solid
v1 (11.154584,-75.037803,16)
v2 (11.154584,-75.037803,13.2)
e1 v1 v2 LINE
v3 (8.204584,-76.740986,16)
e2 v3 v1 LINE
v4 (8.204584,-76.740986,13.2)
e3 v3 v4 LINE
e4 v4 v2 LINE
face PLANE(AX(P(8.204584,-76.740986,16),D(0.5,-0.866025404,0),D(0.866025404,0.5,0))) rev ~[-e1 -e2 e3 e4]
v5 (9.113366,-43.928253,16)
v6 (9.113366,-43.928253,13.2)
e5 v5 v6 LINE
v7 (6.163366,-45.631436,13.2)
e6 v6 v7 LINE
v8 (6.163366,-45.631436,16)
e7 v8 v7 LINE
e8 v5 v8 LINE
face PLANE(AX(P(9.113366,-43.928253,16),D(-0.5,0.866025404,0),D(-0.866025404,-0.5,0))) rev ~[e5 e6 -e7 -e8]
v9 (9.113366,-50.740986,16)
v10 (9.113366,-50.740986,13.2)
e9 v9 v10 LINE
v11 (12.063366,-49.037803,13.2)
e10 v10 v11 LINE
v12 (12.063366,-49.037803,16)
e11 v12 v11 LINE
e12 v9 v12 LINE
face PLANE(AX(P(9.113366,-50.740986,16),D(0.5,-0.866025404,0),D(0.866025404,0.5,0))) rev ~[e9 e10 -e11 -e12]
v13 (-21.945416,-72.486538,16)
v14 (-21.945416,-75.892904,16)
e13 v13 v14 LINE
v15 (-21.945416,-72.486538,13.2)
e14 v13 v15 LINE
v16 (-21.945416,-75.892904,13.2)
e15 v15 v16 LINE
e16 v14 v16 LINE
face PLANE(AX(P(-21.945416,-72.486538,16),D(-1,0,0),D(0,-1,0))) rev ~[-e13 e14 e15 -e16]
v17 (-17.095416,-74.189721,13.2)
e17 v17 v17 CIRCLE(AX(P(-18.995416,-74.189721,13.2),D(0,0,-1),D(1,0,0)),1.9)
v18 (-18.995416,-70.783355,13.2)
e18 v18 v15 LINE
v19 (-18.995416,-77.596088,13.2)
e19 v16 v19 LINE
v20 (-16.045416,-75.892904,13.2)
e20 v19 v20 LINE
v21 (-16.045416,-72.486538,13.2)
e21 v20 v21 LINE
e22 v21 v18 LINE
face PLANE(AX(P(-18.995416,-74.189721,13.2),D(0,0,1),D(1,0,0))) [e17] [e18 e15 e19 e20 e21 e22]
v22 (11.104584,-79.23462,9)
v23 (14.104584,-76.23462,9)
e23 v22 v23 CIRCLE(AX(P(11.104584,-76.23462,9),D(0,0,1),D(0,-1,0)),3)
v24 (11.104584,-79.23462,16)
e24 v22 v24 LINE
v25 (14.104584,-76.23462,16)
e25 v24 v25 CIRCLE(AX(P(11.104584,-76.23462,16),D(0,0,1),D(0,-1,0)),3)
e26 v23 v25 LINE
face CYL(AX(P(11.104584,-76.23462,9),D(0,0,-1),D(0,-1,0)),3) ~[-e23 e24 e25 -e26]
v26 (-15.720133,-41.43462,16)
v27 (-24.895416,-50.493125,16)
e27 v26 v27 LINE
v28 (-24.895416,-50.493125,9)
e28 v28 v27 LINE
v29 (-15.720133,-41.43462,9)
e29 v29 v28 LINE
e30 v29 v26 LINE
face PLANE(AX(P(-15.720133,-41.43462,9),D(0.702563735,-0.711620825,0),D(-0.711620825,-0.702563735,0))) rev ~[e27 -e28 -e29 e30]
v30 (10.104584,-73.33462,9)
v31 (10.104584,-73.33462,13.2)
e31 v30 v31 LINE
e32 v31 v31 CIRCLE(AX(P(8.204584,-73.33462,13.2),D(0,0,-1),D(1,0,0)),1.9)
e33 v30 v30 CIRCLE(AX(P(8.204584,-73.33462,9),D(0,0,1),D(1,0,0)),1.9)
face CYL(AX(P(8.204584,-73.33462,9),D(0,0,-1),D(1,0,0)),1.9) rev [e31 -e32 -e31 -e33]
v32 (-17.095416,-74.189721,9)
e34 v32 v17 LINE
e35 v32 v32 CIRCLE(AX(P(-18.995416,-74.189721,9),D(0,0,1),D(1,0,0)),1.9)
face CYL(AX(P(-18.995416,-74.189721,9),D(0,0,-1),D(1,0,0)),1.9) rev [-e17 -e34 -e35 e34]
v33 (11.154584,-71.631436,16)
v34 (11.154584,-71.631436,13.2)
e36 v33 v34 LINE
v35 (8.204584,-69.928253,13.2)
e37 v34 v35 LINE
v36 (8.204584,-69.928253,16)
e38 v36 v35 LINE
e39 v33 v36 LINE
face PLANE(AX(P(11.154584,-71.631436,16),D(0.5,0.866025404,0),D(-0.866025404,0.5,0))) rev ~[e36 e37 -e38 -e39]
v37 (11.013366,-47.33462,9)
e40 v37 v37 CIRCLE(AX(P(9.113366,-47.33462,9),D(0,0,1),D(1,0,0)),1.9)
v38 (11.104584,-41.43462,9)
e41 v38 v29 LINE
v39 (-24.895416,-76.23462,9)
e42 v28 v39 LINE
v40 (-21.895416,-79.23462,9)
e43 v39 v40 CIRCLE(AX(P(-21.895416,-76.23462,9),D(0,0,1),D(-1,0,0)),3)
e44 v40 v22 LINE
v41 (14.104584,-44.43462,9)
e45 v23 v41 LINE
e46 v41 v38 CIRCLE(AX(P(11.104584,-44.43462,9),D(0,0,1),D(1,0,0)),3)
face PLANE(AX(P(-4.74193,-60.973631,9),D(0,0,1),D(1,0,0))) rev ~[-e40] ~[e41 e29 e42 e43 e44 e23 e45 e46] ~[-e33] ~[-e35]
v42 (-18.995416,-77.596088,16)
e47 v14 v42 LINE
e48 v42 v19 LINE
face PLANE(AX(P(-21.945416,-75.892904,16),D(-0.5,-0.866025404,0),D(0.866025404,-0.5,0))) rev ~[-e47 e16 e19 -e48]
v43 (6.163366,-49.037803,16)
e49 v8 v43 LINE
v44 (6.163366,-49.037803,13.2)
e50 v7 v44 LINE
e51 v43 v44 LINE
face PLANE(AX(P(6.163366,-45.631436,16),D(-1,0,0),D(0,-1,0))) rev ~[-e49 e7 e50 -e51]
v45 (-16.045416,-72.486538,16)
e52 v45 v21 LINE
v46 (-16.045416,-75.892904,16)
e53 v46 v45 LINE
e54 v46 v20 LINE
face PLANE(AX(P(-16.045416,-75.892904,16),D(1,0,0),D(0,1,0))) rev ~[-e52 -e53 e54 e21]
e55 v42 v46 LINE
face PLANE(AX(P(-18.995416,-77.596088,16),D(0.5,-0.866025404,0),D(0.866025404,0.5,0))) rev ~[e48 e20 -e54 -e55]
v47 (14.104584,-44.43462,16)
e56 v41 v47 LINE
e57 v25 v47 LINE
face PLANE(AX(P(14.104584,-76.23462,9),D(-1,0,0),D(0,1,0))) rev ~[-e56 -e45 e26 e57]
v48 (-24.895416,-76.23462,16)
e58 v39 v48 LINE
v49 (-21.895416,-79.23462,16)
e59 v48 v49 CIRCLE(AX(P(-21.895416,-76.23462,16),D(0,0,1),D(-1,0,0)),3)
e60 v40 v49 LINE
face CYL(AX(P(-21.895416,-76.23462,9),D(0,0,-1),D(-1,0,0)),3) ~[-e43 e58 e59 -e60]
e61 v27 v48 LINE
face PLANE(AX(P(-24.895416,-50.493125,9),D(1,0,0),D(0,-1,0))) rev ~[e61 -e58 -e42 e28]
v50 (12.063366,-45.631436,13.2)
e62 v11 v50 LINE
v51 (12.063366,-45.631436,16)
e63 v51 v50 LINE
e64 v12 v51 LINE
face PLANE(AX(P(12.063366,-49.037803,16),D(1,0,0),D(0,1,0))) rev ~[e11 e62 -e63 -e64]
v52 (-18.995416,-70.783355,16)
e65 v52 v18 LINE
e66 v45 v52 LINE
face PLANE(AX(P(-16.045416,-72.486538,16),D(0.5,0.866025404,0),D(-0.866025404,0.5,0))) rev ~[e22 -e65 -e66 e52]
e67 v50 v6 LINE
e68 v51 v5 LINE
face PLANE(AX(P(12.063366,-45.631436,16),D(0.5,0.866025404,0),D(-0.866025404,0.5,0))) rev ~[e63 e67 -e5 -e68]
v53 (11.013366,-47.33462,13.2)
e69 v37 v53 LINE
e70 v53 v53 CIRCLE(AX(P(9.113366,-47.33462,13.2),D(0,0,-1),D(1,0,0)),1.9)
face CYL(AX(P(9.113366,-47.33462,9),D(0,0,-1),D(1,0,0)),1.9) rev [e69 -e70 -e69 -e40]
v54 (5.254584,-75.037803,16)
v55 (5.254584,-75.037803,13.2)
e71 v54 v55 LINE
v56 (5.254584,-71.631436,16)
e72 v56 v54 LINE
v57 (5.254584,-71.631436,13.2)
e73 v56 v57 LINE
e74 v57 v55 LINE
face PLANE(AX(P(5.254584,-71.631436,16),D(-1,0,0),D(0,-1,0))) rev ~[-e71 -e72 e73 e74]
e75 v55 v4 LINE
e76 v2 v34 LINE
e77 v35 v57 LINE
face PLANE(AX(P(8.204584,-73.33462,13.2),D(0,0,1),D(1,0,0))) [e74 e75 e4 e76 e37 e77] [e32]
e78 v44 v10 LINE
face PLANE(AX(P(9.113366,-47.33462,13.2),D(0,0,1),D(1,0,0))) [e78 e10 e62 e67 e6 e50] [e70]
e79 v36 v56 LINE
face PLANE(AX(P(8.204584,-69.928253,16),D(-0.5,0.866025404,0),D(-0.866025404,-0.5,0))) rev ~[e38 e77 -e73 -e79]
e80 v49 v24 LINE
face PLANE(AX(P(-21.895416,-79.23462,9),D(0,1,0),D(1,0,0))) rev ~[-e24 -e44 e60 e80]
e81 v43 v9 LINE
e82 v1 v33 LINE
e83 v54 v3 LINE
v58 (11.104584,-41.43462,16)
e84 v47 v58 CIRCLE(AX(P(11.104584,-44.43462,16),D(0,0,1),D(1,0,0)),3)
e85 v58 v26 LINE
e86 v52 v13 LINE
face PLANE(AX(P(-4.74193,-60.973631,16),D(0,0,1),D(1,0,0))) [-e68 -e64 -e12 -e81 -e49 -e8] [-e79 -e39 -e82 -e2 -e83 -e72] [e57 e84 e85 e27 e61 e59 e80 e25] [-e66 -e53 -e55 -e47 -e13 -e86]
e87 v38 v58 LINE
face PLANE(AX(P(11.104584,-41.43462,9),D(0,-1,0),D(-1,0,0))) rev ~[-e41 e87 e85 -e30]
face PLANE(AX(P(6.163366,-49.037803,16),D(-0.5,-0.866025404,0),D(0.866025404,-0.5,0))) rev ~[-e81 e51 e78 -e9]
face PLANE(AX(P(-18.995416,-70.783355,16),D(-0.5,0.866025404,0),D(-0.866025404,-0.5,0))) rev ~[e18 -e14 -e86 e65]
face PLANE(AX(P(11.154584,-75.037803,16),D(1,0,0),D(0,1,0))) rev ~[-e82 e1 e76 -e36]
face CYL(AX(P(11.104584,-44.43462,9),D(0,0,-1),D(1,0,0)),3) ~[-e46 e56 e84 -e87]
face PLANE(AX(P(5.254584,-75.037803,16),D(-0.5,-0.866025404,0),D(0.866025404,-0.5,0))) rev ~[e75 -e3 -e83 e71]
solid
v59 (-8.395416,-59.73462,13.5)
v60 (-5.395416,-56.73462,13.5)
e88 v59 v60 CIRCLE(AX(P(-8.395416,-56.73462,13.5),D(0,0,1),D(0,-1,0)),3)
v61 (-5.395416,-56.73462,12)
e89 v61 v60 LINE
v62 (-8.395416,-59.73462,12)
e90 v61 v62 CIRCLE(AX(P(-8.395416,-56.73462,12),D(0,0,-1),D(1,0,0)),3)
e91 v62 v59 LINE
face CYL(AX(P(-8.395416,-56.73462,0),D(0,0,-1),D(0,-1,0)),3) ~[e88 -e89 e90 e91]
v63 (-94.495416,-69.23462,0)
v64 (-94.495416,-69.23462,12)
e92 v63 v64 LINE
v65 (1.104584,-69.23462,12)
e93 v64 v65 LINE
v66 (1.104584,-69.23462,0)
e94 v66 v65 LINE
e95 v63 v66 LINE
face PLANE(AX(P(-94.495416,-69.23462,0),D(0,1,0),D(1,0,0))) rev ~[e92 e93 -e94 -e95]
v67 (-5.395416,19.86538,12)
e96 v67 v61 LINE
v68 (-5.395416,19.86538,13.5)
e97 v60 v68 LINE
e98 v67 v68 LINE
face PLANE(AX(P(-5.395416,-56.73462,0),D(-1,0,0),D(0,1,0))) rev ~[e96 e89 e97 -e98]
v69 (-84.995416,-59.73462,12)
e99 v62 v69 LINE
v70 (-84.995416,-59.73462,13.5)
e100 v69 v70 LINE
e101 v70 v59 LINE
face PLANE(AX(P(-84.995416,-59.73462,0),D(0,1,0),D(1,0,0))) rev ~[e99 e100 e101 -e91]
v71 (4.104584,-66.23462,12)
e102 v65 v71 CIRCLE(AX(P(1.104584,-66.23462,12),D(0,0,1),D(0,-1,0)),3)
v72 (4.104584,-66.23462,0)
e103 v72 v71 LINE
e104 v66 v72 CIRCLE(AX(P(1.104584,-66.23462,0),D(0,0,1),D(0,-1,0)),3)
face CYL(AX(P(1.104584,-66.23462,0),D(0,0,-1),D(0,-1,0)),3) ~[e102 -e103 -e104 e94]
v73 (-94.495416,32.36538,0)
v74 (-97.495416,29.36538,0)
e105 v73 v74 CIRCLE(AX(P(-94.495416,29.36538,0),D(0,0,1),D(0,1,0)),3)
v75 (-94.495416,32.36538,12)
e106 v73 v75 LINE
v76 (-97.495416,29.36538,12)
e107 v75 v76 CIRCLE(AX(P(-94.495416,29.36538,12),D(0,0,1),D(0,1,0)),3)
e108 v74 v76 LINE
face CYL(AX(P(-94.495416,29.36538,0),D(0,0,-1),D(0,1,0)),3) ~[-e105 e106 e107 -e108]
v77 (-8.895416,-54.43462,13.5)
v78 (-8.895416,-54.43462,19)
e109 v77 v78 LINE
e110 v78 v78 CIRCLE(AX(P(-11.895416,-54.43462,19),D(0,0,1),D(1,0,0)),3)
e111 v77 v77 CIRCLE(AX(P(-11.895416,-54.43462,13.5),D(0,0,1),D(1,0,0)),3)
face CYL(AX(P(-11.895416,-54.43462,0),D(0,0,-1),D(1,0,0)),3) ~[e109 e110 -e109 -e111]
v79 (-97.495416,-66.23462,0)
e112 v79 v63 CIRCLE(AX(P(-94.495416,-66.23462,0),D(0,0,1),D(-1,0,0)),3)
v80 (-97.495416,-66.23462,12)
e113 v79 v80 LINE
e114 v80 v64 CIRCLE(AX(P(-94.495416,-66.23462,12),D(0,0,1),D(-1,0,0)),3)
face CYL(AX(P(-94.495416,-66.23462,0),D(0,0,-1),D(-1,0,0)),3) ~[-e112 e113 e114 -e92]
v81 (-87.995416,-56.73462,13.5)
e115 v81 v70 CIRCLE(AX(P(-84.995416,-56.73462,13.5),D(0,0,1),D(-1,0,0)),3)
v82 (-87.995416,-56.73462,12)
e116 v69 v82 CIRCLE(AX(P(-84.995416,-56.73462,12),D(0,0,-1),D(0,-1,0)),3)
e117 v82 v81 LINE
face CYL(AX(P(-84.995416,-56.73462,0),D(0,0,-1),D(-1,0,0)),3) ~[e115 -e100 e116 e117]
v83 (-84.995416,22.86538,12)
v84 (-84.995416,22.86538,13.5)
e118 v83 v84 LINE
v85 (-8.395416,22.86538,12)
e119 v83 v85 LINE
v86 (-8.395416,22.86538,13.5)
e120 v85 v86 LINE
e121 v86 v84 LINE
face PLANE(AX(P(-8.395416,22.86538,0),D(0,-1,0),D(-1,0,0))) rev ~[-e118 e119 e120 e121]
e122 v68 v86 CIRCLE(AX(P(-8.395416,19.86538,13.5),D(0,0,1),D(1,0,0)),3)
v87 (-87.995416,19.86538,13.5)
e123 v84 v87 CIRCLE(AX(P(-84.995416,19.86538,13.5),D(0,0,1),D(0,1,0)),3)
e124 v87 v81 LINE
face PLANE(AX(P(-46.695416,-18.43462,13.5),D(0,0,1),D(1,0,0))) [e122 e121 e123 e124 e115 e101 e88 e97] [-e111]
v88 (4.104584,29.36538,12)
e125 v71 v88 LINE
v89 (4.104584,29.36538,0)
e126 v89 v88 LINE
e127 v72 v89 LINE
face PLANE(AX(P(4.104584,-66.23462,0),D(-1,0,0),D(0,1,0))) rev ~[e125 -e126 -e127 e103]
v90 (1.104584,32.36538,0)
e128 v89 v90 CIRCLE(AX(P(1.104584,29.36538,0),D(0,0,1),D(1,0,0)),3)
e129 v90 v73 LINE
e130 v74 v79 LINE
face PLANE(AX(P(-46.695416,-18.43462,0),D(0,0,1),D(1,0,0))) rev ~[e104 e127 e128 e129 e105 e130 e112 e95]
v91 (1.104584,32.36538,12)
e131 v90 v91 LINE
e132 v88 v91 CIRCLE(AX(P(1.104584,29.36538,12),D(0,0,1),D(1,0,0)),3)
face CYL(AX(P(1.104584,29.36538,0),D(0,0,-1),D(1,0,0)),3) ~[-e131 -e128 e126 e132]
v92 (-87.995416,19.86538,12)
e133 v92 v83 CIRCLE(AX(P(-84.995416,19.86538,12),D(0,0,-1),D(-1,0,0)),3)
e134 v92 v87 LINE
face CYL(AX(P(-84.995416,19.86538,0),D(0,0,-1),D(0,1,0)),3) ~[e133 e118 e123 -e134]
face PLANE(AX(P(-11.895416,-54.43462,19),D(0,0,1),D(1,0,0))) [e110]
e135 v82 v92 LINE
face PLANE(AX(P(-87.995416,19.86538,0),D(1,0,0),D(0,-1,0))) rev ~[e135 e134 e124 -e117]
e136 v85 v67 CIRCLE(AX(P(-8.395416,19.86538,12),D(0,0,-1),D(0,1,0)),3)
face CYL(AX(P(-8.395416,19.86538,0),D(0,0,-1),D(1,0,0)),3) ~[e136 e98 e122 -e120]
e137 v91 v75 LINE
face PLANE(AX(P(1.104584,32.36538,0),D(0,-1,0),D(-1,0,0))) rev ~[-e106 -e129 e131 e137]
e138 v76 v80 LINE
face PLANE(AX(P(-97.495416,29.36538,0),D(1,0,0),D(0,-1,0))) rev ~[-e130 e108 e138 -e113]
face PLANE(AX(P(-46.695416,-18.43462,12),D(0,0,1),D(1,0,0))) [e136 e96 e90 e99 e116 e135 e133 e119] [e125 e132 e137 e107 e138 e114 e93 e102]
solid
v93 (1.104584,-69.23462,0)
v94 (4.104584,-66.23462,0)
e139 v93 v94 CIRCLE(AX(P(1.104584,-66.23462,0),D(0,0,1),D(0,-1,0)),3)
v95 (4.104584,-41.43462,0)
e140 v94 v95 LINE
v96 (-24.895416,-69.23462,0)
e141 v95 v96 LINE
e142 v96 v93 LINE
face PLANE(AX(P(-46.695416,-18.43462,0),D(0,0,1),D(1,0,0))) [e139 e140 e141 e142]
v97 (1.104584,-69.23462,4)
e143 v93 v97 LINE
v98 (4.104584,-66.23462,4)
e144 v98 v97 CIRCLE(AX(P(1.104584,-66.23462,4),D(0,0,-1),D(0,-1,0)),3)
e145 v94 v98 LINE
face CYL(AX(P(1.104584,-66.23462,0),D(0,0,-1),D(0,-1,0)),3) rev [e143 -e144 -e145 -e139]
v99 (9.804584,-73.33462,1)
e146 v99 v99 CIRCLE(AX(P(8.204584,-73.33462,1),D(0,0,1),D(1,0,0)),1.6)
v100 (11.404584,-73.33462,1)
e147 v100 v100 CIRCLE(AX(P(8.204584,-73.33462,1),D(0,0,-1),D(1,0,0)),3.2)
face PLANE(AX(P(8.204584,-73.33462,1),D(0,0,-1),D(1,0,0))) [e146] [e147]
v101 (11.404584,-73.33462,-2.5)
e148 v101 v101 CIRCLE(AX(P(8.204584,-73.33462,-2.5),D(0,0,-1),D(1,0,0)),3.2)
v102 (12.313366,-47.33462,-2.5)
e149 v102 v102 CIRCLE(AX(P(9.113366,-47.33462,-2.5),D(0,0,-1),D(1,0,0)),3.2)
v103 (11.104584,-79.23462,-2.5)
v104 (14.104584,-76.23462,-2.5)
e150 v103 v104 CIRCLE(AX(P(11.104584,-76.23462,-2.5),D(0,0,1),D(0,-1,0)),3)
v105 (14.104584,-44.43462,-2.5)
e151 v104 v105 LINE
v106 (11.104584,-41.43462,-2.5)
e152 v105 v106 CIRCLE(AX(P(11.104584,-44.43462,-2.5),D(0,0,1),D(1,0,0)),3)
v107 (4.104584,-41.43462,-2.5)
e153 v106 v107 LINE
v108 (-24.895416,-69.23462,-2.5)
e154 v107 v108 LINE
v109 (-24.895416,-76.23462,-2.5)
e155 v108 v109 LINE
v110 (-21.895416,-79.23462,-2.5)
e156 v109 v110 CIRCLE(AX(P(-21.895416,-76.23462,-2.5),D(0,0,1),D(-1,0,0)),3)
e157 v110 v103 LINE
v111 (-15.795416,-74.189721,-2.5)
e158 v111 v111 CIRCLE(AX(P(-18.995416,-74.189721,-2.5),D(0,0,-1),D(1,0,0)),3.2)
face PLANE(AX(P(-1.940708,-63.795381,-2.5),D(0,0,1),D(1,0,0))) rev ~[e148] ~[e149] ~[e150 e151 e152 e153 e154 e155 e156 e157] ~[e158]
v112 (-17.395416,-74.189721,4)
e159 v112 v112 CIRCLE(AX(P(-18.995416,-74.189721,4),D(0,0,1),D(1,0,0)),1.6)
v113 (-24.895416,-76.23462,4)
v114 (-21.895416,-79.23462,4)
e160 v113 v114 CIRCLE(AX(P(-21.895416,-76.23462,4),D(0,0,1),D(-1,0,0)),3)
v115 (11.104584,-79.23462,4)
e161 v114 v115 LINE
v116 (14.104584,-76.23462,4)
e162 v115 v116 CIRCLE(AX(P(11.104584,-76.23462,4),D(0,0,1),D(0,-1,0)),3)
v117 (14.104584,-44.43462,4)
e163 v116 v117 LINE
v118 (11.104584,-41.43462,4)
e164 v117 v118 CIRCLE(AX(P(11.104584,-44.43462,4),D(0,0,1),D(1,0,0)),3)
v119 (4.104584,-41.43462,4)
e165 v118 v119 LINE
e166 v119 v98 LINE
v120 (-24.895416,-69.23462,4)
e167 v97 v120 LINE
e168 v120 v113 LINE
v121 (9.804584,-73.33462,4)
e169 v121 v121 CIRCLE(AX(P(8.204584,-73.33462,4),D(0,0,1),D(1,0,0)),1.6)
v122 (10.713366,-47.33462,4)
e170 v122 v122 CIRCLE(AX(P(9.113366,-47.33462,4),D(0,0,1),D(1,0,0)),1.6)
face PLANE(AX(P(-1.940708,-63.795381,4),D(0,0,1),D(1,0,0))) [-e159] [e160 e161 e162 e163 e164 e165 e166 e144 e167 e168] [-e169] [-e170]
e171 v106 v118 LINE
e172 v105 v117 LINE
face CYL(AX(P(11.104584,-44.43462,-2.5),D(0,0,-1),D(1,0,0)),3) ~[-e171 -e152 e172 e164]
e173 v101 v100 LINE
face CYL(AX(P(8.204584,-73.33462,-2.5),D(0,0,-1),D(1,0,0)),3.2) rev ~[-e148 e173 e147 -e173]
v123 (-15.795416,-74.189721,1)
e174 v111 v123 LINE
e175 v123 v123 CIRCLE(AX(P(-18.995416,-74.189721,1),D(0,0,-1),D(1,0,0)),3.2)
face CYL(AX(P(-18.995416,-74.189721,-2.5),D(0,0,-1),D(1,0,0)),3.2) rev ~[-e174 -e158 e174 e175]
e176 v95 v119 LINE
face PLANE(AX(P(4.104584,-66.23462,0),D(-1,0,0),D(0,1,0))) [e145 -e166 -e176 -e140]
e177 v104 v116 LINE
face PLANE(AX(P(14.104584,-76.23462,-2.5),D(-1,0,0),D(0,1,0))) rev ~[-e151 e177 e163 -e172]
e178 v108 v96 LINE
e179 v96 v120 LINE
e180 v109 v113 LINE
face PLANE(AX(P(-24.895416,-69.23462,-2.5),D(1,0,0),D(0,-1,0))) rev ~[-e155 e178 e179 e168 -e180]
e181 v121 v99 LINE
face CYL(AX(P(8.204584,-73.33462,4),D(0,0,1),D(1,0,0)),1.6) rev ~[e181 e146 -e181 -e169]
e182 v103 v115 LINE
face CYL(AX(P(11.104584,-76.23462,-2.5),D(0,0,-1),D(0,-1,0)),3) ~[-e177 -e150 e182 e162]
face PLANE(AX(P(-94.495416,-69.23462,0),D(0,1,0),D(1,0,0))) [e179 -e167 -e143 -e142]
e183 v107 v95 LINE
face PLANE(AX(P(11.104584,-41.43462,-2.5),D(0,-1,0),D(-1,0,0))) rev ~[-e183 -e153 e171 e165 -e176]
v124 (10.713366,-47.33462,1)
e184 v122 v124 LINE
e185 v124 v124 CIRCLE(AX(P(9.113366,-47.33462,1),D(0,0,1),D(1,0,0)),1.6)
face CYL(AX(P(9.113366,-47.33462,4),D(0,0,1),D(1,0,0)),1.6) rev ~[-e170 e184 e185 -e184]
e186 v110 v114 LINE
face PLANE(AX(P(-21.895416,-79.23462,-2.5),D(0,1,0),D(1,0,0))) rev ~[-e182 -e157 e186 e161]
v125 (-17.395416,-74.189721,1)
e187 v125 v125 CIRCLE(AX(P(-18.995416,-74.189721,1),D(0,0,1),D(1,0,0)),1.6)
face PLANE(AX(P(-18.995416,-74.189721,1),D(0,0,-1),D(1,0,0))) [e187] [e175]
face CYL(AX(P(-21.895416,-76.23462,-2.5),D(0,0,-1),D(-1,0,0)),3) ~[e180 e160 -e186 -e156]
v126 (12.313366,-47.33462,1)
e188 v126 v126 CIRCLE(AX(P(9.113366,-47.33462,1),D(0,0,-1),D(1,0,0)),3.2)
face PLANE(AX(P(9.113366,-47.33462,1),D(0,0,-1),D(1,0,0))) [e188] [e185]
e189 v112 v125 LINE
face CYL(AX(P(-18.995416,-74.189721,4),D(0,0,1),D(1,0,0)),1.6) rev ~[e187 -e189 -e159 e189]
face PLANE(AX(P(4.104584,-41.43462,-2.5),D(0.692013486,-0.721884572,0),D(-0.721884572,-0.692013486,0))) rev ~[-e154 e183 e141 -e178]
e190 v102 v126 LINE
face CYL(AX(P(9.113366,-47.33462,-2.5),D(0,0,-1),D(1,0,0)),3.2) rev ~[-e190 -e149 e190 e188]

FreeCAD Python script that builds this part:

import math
import FreeCAD as App
import Part
import Sketcher
Q = App.Units.Quantity


def add_polygon(sketch, points):
    """Adds a closed chain of lines whose ends are joined by coincident constraints."""
    first, n = sketch.GeometryCount, len(points)
    for a, b in zip(points, points[1:] + points[:1]):
        sketch.addGeometry(Part.LineSegment(App.Vector(*a, 0), App.Vector(*b, 0)), False)
    for i in range(n):
        sketch.addConstraint(Sketcher.Constraint("Coincident", first + i, 2, first + (i + 1) % n, 1))

doc = App.newDocument("Part")
body = doc.addObject("PartDesign::Body", "Body")

# Sketch on XY plane
sketch1 = doc.addObject("Sketcher::SketchObject", "Sketch")
body.addObject(sketch1)
sketch1.AttachmentSupport = (doc.XY_Plane, [""])
sketch1.MapMode = "FlatFace"
sketch1.addGeometry(Part.LineSegment(App.Vector(1.1, 32.4, 0), App.Vector(-94.5, 32.4, 0)), False)
sketch1.addGeometry(Part.ArcOfCircle(Part.Circle(App.Vector(-94.5, 29.4, 0), App.Vector(0, 0, 1), 3), math.radians(90), math.radians(180)), False)
sketch1.addGeometry(Part.LineSegment(App.Vector(-97.5, 29.4, 0), App.Vector(-97.5, -66.2, 0)), False)
sketch1.addGeometry(Part.ArcOfCircle(Part.Circle(App.Vector(-94.5, -66.2, 0), App.Vector(0, 0, 1), 3), math.radians(180), math.radians(270)), False)
sketch1.addGeometry(Part.LineSegment(App.Vector(-94.5, -69.2, 0), App.Vector(1.1, -69.2, 0)), False)
sketch1.addGeometry(Part.ArcOfCircle(Part.Circle(App.Vector(1.1, -66.2, 0), App.Vector(0, 0, 1), 3), math.radians(-90), math.radians(0)), False)
sketch1.addGeometry(Part.LineSegment(App.Vector(4.1, -66.2, 0), App.Vector(4.1, 29.4, 0)), False)
sketch1.addGeometry(Part.ArcOfCircle(Part.Circle(App.Vector(1.1, 29.4, 0), App.Vector(0, 0, 1), 3), math.radians(0), math.radians(90)), False)
sketch1.addGeometry(Part.LineSegment(App.Vector(-88, -56.7, 0), App.Vector(-88, 19.9, 0)), False)
sketch1.addGeometry(Part.ArcOfCircle(Part.Circle(App.Vector(-85, 19.9, 0), App.Vector(0, 0, 1), 3), math.radians(90), math.radians(180)), False)
sketch1.addGeometry(Part.LineSegment(App.Vector(-85, 22.9, 0), App.Vector(-8.4, 22.9, 0)), False)
sketch1.addGeometry(Part.ArcOfCircle(Part.Circle(App.Vector(-8.4, 19.9, 0), App.Vector(0, 0, 1), 3), math.radians(0), math.radians(90)), False)
sketch1.addGeometry(Part.LineSegment(App.Vector(-5.4, 19.9, 0), App.Vector(-5.4, -56.7, 0)), False)
sketch1.addGeometry(Part.ArcOfCircle(Part.Circle(App.Vector(-8.4, -56.7, 0), App.Vector(0, 0, 1), 3), math.radians(-90), math.radians(0)), False)
sketch1.addGeometry(Part.LineSegment(App.Vector(-8.4, -59.7, 0), App.Vector(-85, -59.7, 0)), False)
sketch1.addGeometry(Part.ArcOfCircle(Part.Circle(App.Vector(-85, -56.7, 0), App.Vector(0, 0, 1), 3), math.radians(180), math.radians(270)), False)
sketch1.addConstraint(Sketcher.Constraint("Tangent", 0, 2, 1, 1))
sketch1.addConstraint(Sketcher.Constraint("Tangent", 1, 2, 2, 1))
sketch1.addConstraint(Sketcher.Constraint("Tangent", 2, 2, 3, 1))
sketch1.addConstraint(Sketcher.Constraint("Tangent", 3, 2, 4, 1))
sketch1.addConstraint(Sketcher.Constraint("Tangent", 4, 2, 5, 1))
sketch1.addConstraint(Sketcher.Constraint("Tangent", 5, 2, 6, 1))
sketch1.addConstraint(Sketcher.Constraint("Tangent", 6, 2, 7, 1))
sketch1.addConstraint(Sketcher.Constraint("Tangent", 7, 2, 0, 1))
sketch1.addConstraint(Sketcher.Constraint("Tangent", 8, 2, 9, 2))
sketch1.addConstraint(Sketcher.Constraint("Tangent", 9, 1, 10, 1))
sketch1.addConstraint(Sketcher.Constraint("Tangent", 10, 2, 11, 2))
sketch1.addConstraint(Sketcher.Constraint("Tangent", 11, 1, 12, 1))
sketch1.addConstraint(Sketcher.Constraint("Tangent", 12, 2, 13, 2))
sketch1.addConstraint(Sketcher.Constraint("Tangent", 13, 1, 14, 1))
sketch1.addConstraint(Sketcher.Constraint("Tangent", 14, 2, 15, 2))
sketch1.addConstraint(Sketcher.Constraint("Tangent", 15, 1, 8, 1))
sketch1.addConstraint(Sketcher.Constraint("Horizontal", 0))
sketch1.addConstraint(Sketcher.Constraint("Vertical", 2))
sketch1.addConstraint(Sketcher.Constraint("Horizontal", 4))
sketch1.addConstraint(Sketcher.Constraint("Vertical", 6))
sketch1.addConstraint(Sketcher.Constraint("Vertical", 8))
sketch1.addConstraint(Sketcher.Constraint("Horizontal", 10))
sketch1.addConstraint(Sketcher.Constraint("Vertical", 12))
sketch1.addConstraint(Sketcher.Constraint("Horizontal", 14))
sketch1.addConstraint(Sketcher.Constraint("Equal", 1, 3))
sketch1.addConstraint(Sketcher.Constraint("Equal", 3, 5))
sketch1.addConstraint(Sketcher.Constraint("Equal", 5, 7))
sketch1.addConstraint(Sketcher.Constraint("Equal", 7, 9))
sketch1.addConstraint(Sketcher.Constraint("Equal", 9, 11))
sketch1.addConstraint(Sketcher.Constraint("Equal", 11, 13))
sketch1.addConstraint(Sketcher.Constraint("Equal", 13, 15))
sketch1.addConstraint(Sketcher.Constraint("Equal", 4, 2))
sketch1.addConstraint(Sketcher.Constraint("Equal", 14, 8))
sketch1.addConstraint(Sketcher.Constraint("Radius", 1, 3.0))
sketch1.addConstraint(Sketcher.Constraint("DistanceX", 0, 2, 0, 1, 95.6))
sketch1.addConstraint(Sketcher.Constraint("DistanceX", 10, 1, 10, 2, 76.6))
sketch1.addConstraint(Sketcher.Constraint("DistanceX", 1, 3, 9, 3, 9.5))
sketch1.addConstraint(Sketcher.Constraint("DistanceY", 9, 3, 1, 3, 9.5))
sketch1.addConstraint(Sketcher.Constraint("DistanceY", -1, 1, 1, 3, 29.36538))
sketch1.addConstraint(Sketcher.Constraint("DistanceX", 1, 3, -1, 1, 94.495416))
pad1 = doc.addObject("PartDesign::Pad", "Pad")
body.addObject(pad1)
pad1.Profile = sketch1
pad1.Length = 12

# Sketch on XY plane
sketch2 = doc.addObject("Sketcher::SketchObject", "Sketch001")
body.addObject(sketch2)
sketch2.AttachmentSupport = (doc.XY_Plane, [""])
sketch2.MapMode = "FlatFace"
sketch2.addGeometry(Part.LineSegment(App.Vector(-8.4, 22.9, 0), App.Vector(-85, 22.9, 0)), False)
sketch2.addGeometry(Part.ArcOfCircle(Part.Circle(App.Vector(-85, 19.9, 0), App.Vector(0, 0, 1), 3), math.radians(90), math.radians(180)), False)
sketch2.addGeometry(Part.LineSegment(App.Vector(-88, 19.9, 0), App.Vector(-88, -56.7, 0)), False)
sketch2.addGeometry(Part.ArcOfCircle(Part.Circle(App.Vector(-85, -56.7, 0), App.Vector(0, 0, 1), 3), math.radians(180), math.radians(270)), False)
sketch2.addGeometry(Part.LineSegment(App.Vector(-85, -59.7, 0), App.Vector(-8.4, -59.7, 0)), False)
sketch2.addGeometry(Part.ArcOfCircle(Part.Circle(App.Vector(-8.4, -56.7, 0), App.Vector(0, 0, 1), 3), math.radians(-90), math.radians(0)), False)
sketch2.addGeometry(Part.LineSegment(App.Vector(-5.4, -56.7, 0), App.Vector(-5.4, 19.9, 0)), False)
sketch2.addGeometry(Part.ArcOfCircle(Part.Circle(App.Vector(-8.4, 19.9, 0), App.Vector(0, 0, 1), 3), math.radians(0), math.radians(90)), False)
sketch2.addGeometry(Part.Circle(App.Vector(-11.9, -54.4, 0), App.Vector(0, 0, 1), 3), False)
sketch2.addConstraint(Sketcher.Constraint("Tangent", 0, 2, 1, 1))
sketch2.addConstraint(Sketcher.Constraint("Tangent", 1, 2, 2, 1))
sketch2.addConstraint(Sketcher.Constraint("Tangent", 2, 2, 3, 1))
sketch2.addConstraint(Sketcher.Constraint("Tangent", 3, 2, 4, 1))
sketch2.addConstraint(Sketcher.Constraint("Tangent", 4, 2, 5, 1))
sketch2.addConstraint(Sketcher.Constraint("Tangent", 5, 2, 6, 1))
sketch2.addConstraint(Sketcher.Constraint("Tangent", 6, 2, 7, 1))
sketch2.addConstraint(Sketcher.Constraint("Tangent", 7, 2, 0, 1))
sketch2.addConstraint(Sketcher.Constraint("Horizontal", 0))
sketch2.addConstraint(Sketcher.Constraint("Vertical", 2))
sketch2.addConstraint(Sketcher.Constraint("Horizontal", 4))
sketch2.addConstraint(Sketcher.Constraint("Vertical", 6))
sketch2.addConstraint(Sketcher.Constraint("Equal", 1, 3))
sketch2.addConstraint(Sketcher.Constraint("Equal", 3, 5))
sketch2.addConstraint(Sketcher.Constraint("Equal", 5, 7))
sketch2.addConstraint(Sketcher.Constraint("Equal", 7, 8))
sketch2.addConstraint(Sketcher.Constraint("Equal", 4, 2))
sketch2.addConstraint(Sketcher.Constraint("Diameter", 8, 6.0))
sketch2.addConstraint(Sketcher.Constraint("DistanceX", 0, 2, 0, 1, 76.6))
sketch2.addConstraint(Sketcher.Constraint("DistanceX", 8, 3, 5, 3, 3.5))
sketch2.addConstraint(Sketcher.Constraint("DistanceY", 5, 3, 8, 3, 2.3))
sketch2.addConstraint(Sketcher.Constraint("DistanceY", -1, 1, 1, 3, 19.86538))
sketch2.addConstraint(Sketcher.Constraint("DistanceX", 1, 3, -1, 1, 84.995416))
pad2 = doc.addObject("PartDesign::Pad", "Pad001")
body.addObject(pad2)
pad2.Profile = sketch2
pad2.Length = 13.5

# Sketch on XY plane
sketch3 = doc.addObject("Sketcher::SketchObject", "Sketch002")
body.addObject(sketch3)
sketch3.AttachmentSupport = (doc.XY_Plane, [""])
sketch3.MapMode = "FlatFace"
sketch3.addGeometry(Part.Circle(App.Vector(-11.9, -54.4, 0), App.Vector(0, 0, 1), 3), False)
sketch3.addConstraint(Sketcher.Constraint("Diameter", 0, 6.0))
sketch3.addConstraint(Sketcher.Constraint("DistanceY", 0, 3, -1, 1, 54.43462))
sketch3.addConstraint(Sketcher.Constraint("DistanceX", 0, 3, -1, 1, 11.895416))
pad3 = doc.addObject("PartDesign::Pad", "Pad002")
body.addObject(pad3)
pad3.Profile = sketch3
pad3.Length = 19
body2 = doc.addObject("PartDesign::Body", "Body001")

# Sketch on XY plane
sketch4 = doc.addObject("Sketcher::SketchObject", "Sketch003")
body2.addObject(sketch4)
sketch4.AttachmentSupport = (doc.getObject("XY_Plane001"), [""])
sketch4.MapMode = "FlatFace"
sketch4.addGeometry(Part.ArcOfCircle(Part.Circle(App.Vector(11.1, -44.4, 0), App.Vector(0, 0, 1), 3), math.radians(0), math.radians(90)), False)
sketch4.addGeometry(Part.LineSegment(App.Vector(11.1, -41.4, 0), App.Vector(-15.7, -41.4, 0)), False)
sketch4.addGeometry(Part.LineSegment(App.Vector(-15.7, -41.4, 0), App.Vector(-24.9, -50.5, 0)), False)
sketch4.addGeometry(Part.LineSegment(App.Vector(-24.9, -50.5, 0), App.Vector(-24.9, -76.2, 0)), False)
sketch4.addGeometry(Part.ArcOfCircle(Part.Circle(App.Vector(-21.9, -76.2, 0), App.Vector(0, 0, 1), 3), math.radians(180), math.radians(270)), False)
sketch4.addGeometry(Part.LineSegment(App.Vector(-21.9, -79.2, 0), App.Vector(11.1, -79.2, 0)), False)
sketch4.addGeometry(Part.ArcOfCircle(Part.Circle(App.Vector(11.1, -76.2, 0), App.Vector(0, 0, 1), 3), math.radians(-90), math.radians(0)), False)
sketch4.addGeometry(Part.LineSegment(App.Vector(14.1, -76.2, 0), App.Vector(14.1, -44.4, 0)), False)
sketch4.addGeometry(Part.Circle(App.Vector(-19, -74.2, 0), App.Vector(0, 0, 1), 1.9), False)
sketch4.addGeometry(Part.Circle(App.Vector(8.2, -73.3, 0), App.Vector(0, 0, 1), 1.9), False)
sketch4.addGeometry(Part.Circle(App.Vector(9.1, -47.3, 0), App.Vector(0, 0, 1), 1.9), False)
sketch4.addConstraint(Sketcher.Constraint("Tangent", 0, 2, 1, 1))
sketch4.addConstraint(Sketcher.Constraint("Coincident", 1, 2, 2, 1))
sketch4.addConstraint(Sketcher.Constraint("Coincident", 2, 2, 3, 1))
sketch4.addConstraint(Sketcher.Constraint("Tangent", 3, 2, 4, 1))
sketch4.addConstraint(Sketcher.Constraint("Tangent", 4, 2, 5, 1))
sketch4.addConstraint(Sketcher.Constraint("Tangent", 5, 2, 6, 1))
sketch4.addConstraint(Sketcher.Constraint("Tangent", 6, 2, 7, 1))
sketch4.addConstraint(Sketcher.Constraint("Tangent", 7, 2, 0, 1))
sketch4.addConstraint(Sketcher.Constraint("Horizontal", 1))
sketch4.addConstraint(Sketcher.Constraint("Vertical", 3))
sketch4.addConstraint(Sketcher.Constraint("Horizontal", 5))
sketch4.addConstraint(Sketcher.Constraint("Vertical", 7))
sketch4.addConstraint(Sketcher.Constraint("Equal", 0, 4))
sketch4.addConstraint(Sketcher.Constraint("Equal", 4, 6))
sketch4.addConstraint(Sketcher.Constraint("Equal", 8, 9))
sketch4.addConstraint(Sketcher.Constraint("Equal", 9, 10))
sketch4.addConstraint(Sketcher.Constraint("Radius", 0, 3.0))
sketch4.addConstraint(Sketcher.Constraint("Diameter", 8, 3.8))
sketch4.addConstraint(Sketcher.Constraint("DistanceX", 5, 1, 5, 2, 33.0))
sketch4.addConstraint(Sketcher.Constraint("DistanceY", 7, 1, 7, 2, 31.8))
sketch4.addConstraint(Sketcher.Constraint("DistanceY", 9, 3, 10, 3, 26.0))
sketch4.addConstraint(Sketcher.Constraint("DistanceX", 4, 3, 8, 3, 2.9))
sketch4.addConstraint(Sketcher.Constraint("DistanceX", 9, 3, 6, 3, 2.9))
sketch4.addConstraint(Sketcher.Constraint("DistanceY", 6, 3, 9, 3, 2.9))
sketch4.addConstraint(Sketcher.Constraint("Distance", 2, 12.8935))
sketch4.addConstraint(Sketcher.Constraint("DistanceY", 4, 3, 8, 3, 2.044898))
sketch4.addConstraint(Sketcher.Constraint("DistanceX", 1, 2, 10, 3, 24.833499))
sketch4.addConstraint(Sketcher.Constraint("DistanceX", 1, 2, 1, 1, 26.824717))
sketch4.addConstraint(Sketcher.Constraint("DistanceY", 0, 3, -1, 1, 44.43462))
sketch4.addConstraint(Sketcher.Constraint("DistanceX", -1, 1, 0, 3, 11.104584))
pad4 = doc.addObject("PartDesign::Pad", "Pad003")
body2.addObject(pad4)
pad4.Profile = sketch4
pad4.Length = 7
body3 = doc.addObject("PartDesign::Body", "Body002")
doc.recompute()

body2.Placement = App.Placement(App.Vector(0, 0, 3), App.Rotation(App.Vector(0, 0, 1), 0))
boolean = doc.addObject("PartDesign::Boolean", "Boolean")
body3.addObject(boolean)
boolean.Type = "Fuse"
boolean.addObjects([body2])

# Sketch on XY plane
sketch5 = doc.addObject("Sketcher::SketchObject", "Sketch004")
body3.addObject(sketch5)
sketch5.AttachmentSupport = (doc.getObject("XY_Plane002"), [""])
sketch5.MapMode = "FlatFace"
sketch5.AttachmentOffset = App.Placement(App.Vector(0, 0, 10), App.Rotation())
add_polygon(sketch5, [(8.2, -69.9), (5.3, -71.6), (5.3, -75), (8.2, -76.7), (11.2, -75), (11.2, -71.6)])  # lines 0-5
add_polygon(sketch5, [(9.1, -43.9), (6.2, -45.6), (6.2, -49), (9.1, -50.7), (12.1, -49), (12.1, -45.6)])  # lines 6-11
add_polygon(sketch5, [(-19, -70.8), (-21.9, -72.5), (-21.9, -75.9), (-19, -77.6), (-16, -75.9), (-16, -72.5)])  # lines 12-17
sketch5.addConstraint(Sketcher.Constraint("Vertical", 1))
sketch5.addConstraint(Sketcher.Constraint("Vertical", 4))
sketch5.addConstraint(Sketcher.Constraint("Vertical", 7))
sketch5.addConstraint(Sketcher.Constraint("Vertical", 10))
sketch5.addConstraint(Sketcher.Constraint("Vertical", 13))
sketch5.addConstraint(Sketcher.Constraint("Vertical", 16))
sketch5.addConstraint(Sketcher.Constraint("Parallel", 0, 3))
sketch5.addConstraint(Sketcher.Constraint("Parallel", 2, 5))
sketch5.addConstraint(Sketcher.Constraint("Parallel", 3, 6))
sketch5.addConstraint(Sketcher.Constraint("Parallel", 5, 8))
sketch5.addConstraint(Sketcher.Constraint("Parallel", 6, 9))
sketch5.addConstraint(Sketcher.Constraint("Parallel", 8, 11))
sketch5.addConstraint(Sketcher.Constraint("Parallel", 9, 12))
sketch5.addConstraint(Sketcher.Constraint("Parallel", 11, 14))
sketch5.addConstraint(Sketcher.Constraint("Parallel", 12, 15))
sketch5.addConstraint(Sketcher.Constraint("Parallel", 14, 17))
sketch5.addConstraint(Sketcher.Constraint("Horizontal", 1, 2, 3, 2))
sketch5.addConstraint(Sketcher.Constraint("Horizontal", 0, 2, 4, 2))
sketch5.addConstraint(Sketcher.Constraint("Horizontal", 7, 2, 9, 2))
sketch5.addConstraint(Sketcher.Constraint("Horizontal", 6, 2, 10, 2))
sketch5.addConstraint(Sketcher.Constraint("Horizontal", 13, 2, 15, 2))
sketch5.addConstraint(Sketcher.Constraint("Horizontal", 12, 2, 16, 2))
sketch5.addConstraint(Sketcher.Constraint("Vertical", 2, 2, 5, 2))
sketch5.addConstraint(Sketcher.Constraint("Equal", 4, 7))
sketch5.addConstraint(Sketcher.Constraint("Equal", 10, 13))
sketch5.addConstraint(Sketcher.Constraint("Equal", 5, 6))
sketch5.addConstraint(Sketcher.Constraint("Equal", 11, 12))
sketch5.addConstraint(Sketcher.Constraint("Angle", 0, Q("-150 deg")))
sketch5.addConstraint(Sketcher.Constraint("DistanceY", 0, 2, 6, 2, 26.0))
sketch5.addConstraint(Sketcher.Constraint("DistanceX", 1, 2, 3, 2, 5.9))
sketch5.addConstraint(Sketcher.Constraint("DistanceX", 12, 2, 0, 2, 27.2))
sketch5.addConstraint(Sketcher.Constraint("DistanceY", 12, 2, 0, 2, 0.855102))
sketch5.addConstraint(Sketcher.Constraint("DistanceY", 1, 2, 1, 1, 3.406367))
sketch5.addConstraint(Sketcher.Constraint("DistanceX", 6, 2, 5, 2, 2.041219))
sketch5.addConstraint(Sketcher.Constraint("DistanceX", -1, 1, 0, 2, 5.254584))
sketch5.addConstraint(Sketcher.Constraint("DistanceY", 0, 2, -1, 1, 71.631436))
pocket1 = doc.addObject("PartDesign::Pocket", "Pocket")
body3.addObject(pocket1)
pocket1.Profile = sketch5
pocket1.Length = 2.8
body4 = doc.addObject("PartDesign::Body", "Body003")
doc.recompute()

body3.Placement = App.Placement(App.Vector(0, 0, 8.8), App.Rotation(App.Vector(0, 0, 1), 0))
boolean2 = doc.addObject("PartDesign::Boolean", "Boolean001")
body4.addObject(boolean2)
boolean2.Type = "Fuse"
boolean2.addObjects([body3])
body5 = doc.addObject("PartDesign::Body", "Body004")
doc.recompute()

body4.Placement = App.Placement(App.Vector(0, 0, -0.8), App.Rotation(App.Vector(0, 0, 1), 0))
boolean3 = doc.addObject("PartDesign::Boolean", "Boolean002")
body5.addObject(boolean3)
boolean3.Type = "Fuse"
boolean3.addObjects([body4])
body6 = doc.addObject("PartDesign::Body", "Body005")

# Sketch on XY plane
sketch6 = doc.addObject("Sketcher::SketchObject", "Sketch005")
body6.addObject(sketch6)
sketch6.AttachmentSupport = (doc.getObject("XY_Plane005"), [""])
sketch6.MapMode = "FlatFace"
sketch6.addGeometry(Part.LineSegment(App.Vector(11.1, -41.4, 0), App.Vector(4.1, -41.4, 0)), False)
sketch6.addGeometry(Part.LineSegment(App.Vector(4.1, -41.4, 0), App.Vector(-24.9, -69.2, 0)), False)
sketch6.addGeometry(Part.LineSegment(App.Vector(-24.9, -69.2, 0), App.Vector(-24.9, -76.2, 0)), False)
sketch6.addGeometry(Part.ArcOfCircle(Part.Circle(App.Vector(-21.9, -76.2, 0), App.Vector(0, 0, 1), 3), math.radians(180), math.radians(270)), False)
sketch6.addGeometry(Part.LineSegment(App.Vector(-21.9, -79.2, 0), App.Vector(11.1, -79.2, 0)), False)
sketch6.addGeometry(Part.ArcOfCircle(Part.Circle(App.Vector(11.1, -76.2, 0), App.Vector(0, 0, 1), 3), math.radians(-90), math.radians(0)), False)
sketch6.addGeometry(Part.LineSegment(App.Vector(14.1, -76.2, 0), App.Vector(14.1, -44.4, 0)), False)
sketch6.addGeometry(Part.ArcOfCircle(Part.Circle(App.Vector(11.1, -44.4, 0), App.Vector(0, 0, 1), 3), math.radians(0), math.radians(90)), False)
sketch6.addConstraint(Sketcher.Constraint("Coincident", 0, 2, 1, 1))
sketch6.addConstraint(Sketcher.Constraint("Coincident", 1, 2, 2, 1))
sketch6.addConstraint(Sketcher.Constraint("Tangent", 2, 2, 3, 1))
sketch6.addConstraint(Sketcher.Constraint("Tangent", 3, 2, 4, 1))
sketch6.addConstraint(Sketcher.Constraint("Tangent", 4, 2, 5, 1))
sketch6.addConstraint(Sketcher.Constraint("Tangent", 5, 2, 6, 1))
sketch6.addConstraint(Sketcher.Constraint("Tangent", 6, 2, 7, 1))
sketch6.addConstraint(Sketcher.Constraint("Tangent", 7, 2, 0, 1))
sketch6.addConstraint(Sketcher.Constraint("Horizontal", 0))
sketch6.addConstraint(Sketcher.Constraint("Vertical", 2))
sketch6.addConstraint(Sketcher.Constraint("Horizontal", 4))
sketch6.addConstraint(Sketcher.Constraint("Vertical", 6))
sketch6.addConstraint(Sketcher.Constraint("Equal", 3, 5))
sketch6.addConstraint(Sketcher.Constraint("Equal", 5, 7))
sketch6.addConstraint(Sketcher.Constraint("Equal", 0, 2))
sketch6.addConstraint(Sketcher.Constraint("Radius", 3, 3.0))
sketch6.addConstraint(Sketcher.Constraint("DistanceX", 0, 2, 0, 1, 7.0))
sketch6.addConstraint(Sketcher.Constraint("DistanceX", 4, 1, 4, 2, 33.0))
sketch6.addConstraint(Sketcher.Constraint("DistanceY", 6, 1, 6, 2, 31.8))
sketch6.addConstraint(Sketcher.Constraint("DistanceY", 3, 3, -1, 1, 76.23462))
sketch6.addConstraint(Sketcher.Constraint("DistanceX", 3, 3, -1, 1, 21.895416))
pad5 = doc.addObject("PartDesign::Pad", "Pad004")
body6.addObject(pad5)
pad5.Profile = sketch6
pad5.Length = 6.5
body7 = doc.addObject("PartDesign::Body", "Body006")
doc.recompute()

body6.Placement = App.Placement(App.Vector(0, 0, -2.5), App.Rotation(App.Vector(0, 0, 1), 0))
boolean4 = doc.addObject("PartDesign::Boolean", "Boolean003")
body7.addObject(boolean4)
boolean4.Type = "Fuse"
boolean4.addObjects([body6])

# Sketch on XY plane
sketch7 = doc.addObject("Sketcher::SketchObject", "Sketch006")
body7.addObject(sketch7)
sketch7.AttachmentSupport = (doc.getObject("XY_Plane006"), [""])
sketch7.MapMode = "FlatFace"
sketch7.AttachmentOffset = App.Placement(App.Vector(0, 0, -2.5), App.Rotation())
sketch7.addGeometry(Part.Circle(App.Vector(-19, -74.2, 0), App.Vector(0, 0, 1), 3.2), False)
sketch7.addGeometry(Part.Circle(App.Vector(8.2, -73.3, 0), App.Vector(0, 0, 1), 3.2), False)
sketch7.addGeometry(Part.Circle(App.Vector(9.1, -47.3, 0), App.Vector(0, 0, 1), 3.2), False)
sketch7.addConstraint(Sketcher.Constraint("Equal", 0, 1))
sketch7.addConstraint(Sketcher.Constraint("Equal", 1, 2))
sketch7.addConstraint(Sketcher.Constraint("Diameter", 0, 6.4))
sketch7.addConstraint(Sketcher.Constraint("DistanceY", 1, 3, 2, 3, 26.0))
sketch7.addConstraint(Sketcher.Constraint("DistanceX", 0, 3, 1, 3, 27.2))
sketch7.addConstraint(Sketcher.Constraint("DistanceY", 0, 3, 1, 3, 0.855102))
sketch7.addConstraint(Sketcher.Constraint("DistanceY", 0, 3, -1, 1, 74.189721))
sketch7.addConstraint(Sketcher.Constraint("DistanceX", 1, 3, 2, 3, 0.908781))
sketch7.addConstraint(Sketcher.Constraint("DistanceX", 0, 3, -1, 1, 18.995416))
pocket2 = doc.addObject("PartDesign::Pocket", "Pocket001")
body7.addObject(pocket2)
pocket2.Profile = sketch7
pocket2.Length = 3.5
pocket2.Reversed = True

# Sketch on XY plane
sketch8 = doc.addObject("Sketcher::SketchObject", "Sketch007")
body7.addObject(sketch8)
sketch8.AttachmentSupport = (doc.getObject("XY_Plane006"), [""])
sketch8.MapMode = "FlatFace"
sketch8.AttachmentOffset = App.Placement(App.Vector(0, 0, 4), App.Rotation())
sketch8.addGeometry(Part.Circle(App.Vector(-19, -74.2, 0), App.Vector(0, 0, 1), 1.6), False)
sketch8.addGeometry(Part.Circle(App.Vector(9.1, -47.3, 0), App.Vector(0, 0, 1), 1.6), False)
sketch8.addGeometry(Part.Circle(App.Vector(8.2, -73.3, 0), App.Vector(0, 0, 1), 1.6), False)
sketch8.addConstraint(Sketcher.Constraint("Equal", 0, 1))
sketch8.addConstraint(Sketcher.Constraint("Equal", 1, 2))
sketch8.addConstraint(Sketcher.Constraint("Diameter", 0, 3.2))
sketch8.addConstraint(Sketcher.Constraint("DistanceY", 2, 3, 1, 3, 26.0))
sketch8.addConstraint(Sketcher.Constraint("DistanceX", 0, 3, 2, 3, 27.2))
sketch8.addConstraint(Sketcher.Constraint("DistanceY", 0, 3, 1, 3, 26.855102))
sketch8.addConstraint(Sketcher.Constraint("DistanceY", 0, 3, -1, 1, 74.189721))
sketch8.addConstraint(Sketcher.Constraint("DistanceX", 0, 3, 1, 3, 28.108781))
sketch8.addConstraint(Sketcher.Constraint("DistanceX", 0, 3, -1, 1, 18.995416))
pocket3 = doc.addObject("PartDesign::Pocket", "Pocket002")
body7.addObject(pocket3)
pocket3.Profile = sketch8
pocket3.Type = "ThroughAll"
doc.recompute()

body8 = doc.addObject("PartDesign::Body", "Body007")
body8.BaseFeature = body
boolean5 = doc.addObject("PartDesign::Boolean", "Boolean004")
body7.addObject(boolean5)
boolean5.Type = "Cut"
boolean5.addObjects([body8])
doc.recompute()
body9 = doc.addObject("PartDesign::Body", "Body008")
doc.recompute()

body5.Placement = App.Placement(App.Vector(0, 0, -2), App.Rotation(App.Vector(0, 0, 1), 0))
boolean6 = doc.addObject("PartDesign::Boolean", "Boolean005")
body9.addObject(boolean6)
boolean6.Type = "Fuse"
boolean6.addObjects([body5])

doc.recompute()
